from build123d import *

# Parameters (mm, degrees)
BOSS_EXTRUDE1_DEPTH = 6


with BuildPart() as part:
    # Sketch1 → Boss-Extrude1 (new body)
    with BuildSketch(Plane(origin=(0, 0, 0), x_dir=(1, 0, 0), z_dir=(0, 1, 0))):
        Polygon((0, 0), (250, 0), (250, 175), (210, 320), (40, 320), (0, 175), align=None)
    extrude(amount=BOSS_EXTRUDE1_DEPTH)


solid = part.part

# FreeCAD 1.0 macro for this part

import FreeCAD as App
import Part
import Sketcher

V = App.Vector


def add_polygon(sketch, points):
    """Adds a closed chain of lines whose ends are joined by coincident constraints."""
    first, n = sketch.GeometryCount, len(points)
    for a, b in zip(points, points[1:] + points[:1]):
        sketch.addGeometry(Part.LineSegment(App.Vector(*a, 0), App.Vector(*b, 0)), False)
    for i in range(n):
        sketch.addConstraint(Sketcher.Constraint("Coincident", first + i, 2, first + (i + 1) % n, 1))

doc = App.newDocument("Part")
body = doc.addObject("PartDesign::Body", "Body")

# Sketch on XZ plane
sketch1 = doc.addObject("Sketcher::SketchObject", "Sketch")
body.addObject(sketch1)
sketch1.AttachmentSupport = (doc.XZ_Plane, [""])
sketch1.MapMode = "FlatFace"
add_polygon(sketch1, [(0, 0), (250, 0), (250, -175), (210, -320), (40, -320), (0, -175)])  # lines 0-5
sketch1.addConstraint(Sketcher.Constraint("Horizontal", 0))
sketch1.addConstraint(Sketcher.Constraint("Vertical", 1))
sketch1.addConstraint(Sketcher.Constraint("Horizontal", 3))
sketch1.addConstraint(Sketcher.Constraint("Vertical", 5))
sketch1.addConstraint(Sketcher.Constraint("Coincident", 5, 2, -1, 1))
sketch1.addConstraint(Sketcher.Constraint("Horizontal", 1, 2, 4, 2))
sketch1.addConstraint(Sketcher.Constraint("Equal", 2, 4))
sketch1.addConstraint(Sketcher.Constraint("DistanceX", 0, 1, 0, 2, 250.0))
sketch1.addConstraint(Sketcher.Constraint("DistanceX", 3, 2, 3, 1, 170.0))
sketch1.addConstraint(Sketcher.Constraint("DistanceY", 1, 2, 1, 1, 175.0))
sketch1.addConstraint(Sketcher.Constraint("DistanceY", 2, 2, -1, 1, 320.0))
pad1 = doc.addObject("PartDesign::Pad", "Pad")
body.addObject(pad1)
pad1.Profile = sketch1
pad1.Length = 6
pad1.Reversed = True

doc.recompute()
